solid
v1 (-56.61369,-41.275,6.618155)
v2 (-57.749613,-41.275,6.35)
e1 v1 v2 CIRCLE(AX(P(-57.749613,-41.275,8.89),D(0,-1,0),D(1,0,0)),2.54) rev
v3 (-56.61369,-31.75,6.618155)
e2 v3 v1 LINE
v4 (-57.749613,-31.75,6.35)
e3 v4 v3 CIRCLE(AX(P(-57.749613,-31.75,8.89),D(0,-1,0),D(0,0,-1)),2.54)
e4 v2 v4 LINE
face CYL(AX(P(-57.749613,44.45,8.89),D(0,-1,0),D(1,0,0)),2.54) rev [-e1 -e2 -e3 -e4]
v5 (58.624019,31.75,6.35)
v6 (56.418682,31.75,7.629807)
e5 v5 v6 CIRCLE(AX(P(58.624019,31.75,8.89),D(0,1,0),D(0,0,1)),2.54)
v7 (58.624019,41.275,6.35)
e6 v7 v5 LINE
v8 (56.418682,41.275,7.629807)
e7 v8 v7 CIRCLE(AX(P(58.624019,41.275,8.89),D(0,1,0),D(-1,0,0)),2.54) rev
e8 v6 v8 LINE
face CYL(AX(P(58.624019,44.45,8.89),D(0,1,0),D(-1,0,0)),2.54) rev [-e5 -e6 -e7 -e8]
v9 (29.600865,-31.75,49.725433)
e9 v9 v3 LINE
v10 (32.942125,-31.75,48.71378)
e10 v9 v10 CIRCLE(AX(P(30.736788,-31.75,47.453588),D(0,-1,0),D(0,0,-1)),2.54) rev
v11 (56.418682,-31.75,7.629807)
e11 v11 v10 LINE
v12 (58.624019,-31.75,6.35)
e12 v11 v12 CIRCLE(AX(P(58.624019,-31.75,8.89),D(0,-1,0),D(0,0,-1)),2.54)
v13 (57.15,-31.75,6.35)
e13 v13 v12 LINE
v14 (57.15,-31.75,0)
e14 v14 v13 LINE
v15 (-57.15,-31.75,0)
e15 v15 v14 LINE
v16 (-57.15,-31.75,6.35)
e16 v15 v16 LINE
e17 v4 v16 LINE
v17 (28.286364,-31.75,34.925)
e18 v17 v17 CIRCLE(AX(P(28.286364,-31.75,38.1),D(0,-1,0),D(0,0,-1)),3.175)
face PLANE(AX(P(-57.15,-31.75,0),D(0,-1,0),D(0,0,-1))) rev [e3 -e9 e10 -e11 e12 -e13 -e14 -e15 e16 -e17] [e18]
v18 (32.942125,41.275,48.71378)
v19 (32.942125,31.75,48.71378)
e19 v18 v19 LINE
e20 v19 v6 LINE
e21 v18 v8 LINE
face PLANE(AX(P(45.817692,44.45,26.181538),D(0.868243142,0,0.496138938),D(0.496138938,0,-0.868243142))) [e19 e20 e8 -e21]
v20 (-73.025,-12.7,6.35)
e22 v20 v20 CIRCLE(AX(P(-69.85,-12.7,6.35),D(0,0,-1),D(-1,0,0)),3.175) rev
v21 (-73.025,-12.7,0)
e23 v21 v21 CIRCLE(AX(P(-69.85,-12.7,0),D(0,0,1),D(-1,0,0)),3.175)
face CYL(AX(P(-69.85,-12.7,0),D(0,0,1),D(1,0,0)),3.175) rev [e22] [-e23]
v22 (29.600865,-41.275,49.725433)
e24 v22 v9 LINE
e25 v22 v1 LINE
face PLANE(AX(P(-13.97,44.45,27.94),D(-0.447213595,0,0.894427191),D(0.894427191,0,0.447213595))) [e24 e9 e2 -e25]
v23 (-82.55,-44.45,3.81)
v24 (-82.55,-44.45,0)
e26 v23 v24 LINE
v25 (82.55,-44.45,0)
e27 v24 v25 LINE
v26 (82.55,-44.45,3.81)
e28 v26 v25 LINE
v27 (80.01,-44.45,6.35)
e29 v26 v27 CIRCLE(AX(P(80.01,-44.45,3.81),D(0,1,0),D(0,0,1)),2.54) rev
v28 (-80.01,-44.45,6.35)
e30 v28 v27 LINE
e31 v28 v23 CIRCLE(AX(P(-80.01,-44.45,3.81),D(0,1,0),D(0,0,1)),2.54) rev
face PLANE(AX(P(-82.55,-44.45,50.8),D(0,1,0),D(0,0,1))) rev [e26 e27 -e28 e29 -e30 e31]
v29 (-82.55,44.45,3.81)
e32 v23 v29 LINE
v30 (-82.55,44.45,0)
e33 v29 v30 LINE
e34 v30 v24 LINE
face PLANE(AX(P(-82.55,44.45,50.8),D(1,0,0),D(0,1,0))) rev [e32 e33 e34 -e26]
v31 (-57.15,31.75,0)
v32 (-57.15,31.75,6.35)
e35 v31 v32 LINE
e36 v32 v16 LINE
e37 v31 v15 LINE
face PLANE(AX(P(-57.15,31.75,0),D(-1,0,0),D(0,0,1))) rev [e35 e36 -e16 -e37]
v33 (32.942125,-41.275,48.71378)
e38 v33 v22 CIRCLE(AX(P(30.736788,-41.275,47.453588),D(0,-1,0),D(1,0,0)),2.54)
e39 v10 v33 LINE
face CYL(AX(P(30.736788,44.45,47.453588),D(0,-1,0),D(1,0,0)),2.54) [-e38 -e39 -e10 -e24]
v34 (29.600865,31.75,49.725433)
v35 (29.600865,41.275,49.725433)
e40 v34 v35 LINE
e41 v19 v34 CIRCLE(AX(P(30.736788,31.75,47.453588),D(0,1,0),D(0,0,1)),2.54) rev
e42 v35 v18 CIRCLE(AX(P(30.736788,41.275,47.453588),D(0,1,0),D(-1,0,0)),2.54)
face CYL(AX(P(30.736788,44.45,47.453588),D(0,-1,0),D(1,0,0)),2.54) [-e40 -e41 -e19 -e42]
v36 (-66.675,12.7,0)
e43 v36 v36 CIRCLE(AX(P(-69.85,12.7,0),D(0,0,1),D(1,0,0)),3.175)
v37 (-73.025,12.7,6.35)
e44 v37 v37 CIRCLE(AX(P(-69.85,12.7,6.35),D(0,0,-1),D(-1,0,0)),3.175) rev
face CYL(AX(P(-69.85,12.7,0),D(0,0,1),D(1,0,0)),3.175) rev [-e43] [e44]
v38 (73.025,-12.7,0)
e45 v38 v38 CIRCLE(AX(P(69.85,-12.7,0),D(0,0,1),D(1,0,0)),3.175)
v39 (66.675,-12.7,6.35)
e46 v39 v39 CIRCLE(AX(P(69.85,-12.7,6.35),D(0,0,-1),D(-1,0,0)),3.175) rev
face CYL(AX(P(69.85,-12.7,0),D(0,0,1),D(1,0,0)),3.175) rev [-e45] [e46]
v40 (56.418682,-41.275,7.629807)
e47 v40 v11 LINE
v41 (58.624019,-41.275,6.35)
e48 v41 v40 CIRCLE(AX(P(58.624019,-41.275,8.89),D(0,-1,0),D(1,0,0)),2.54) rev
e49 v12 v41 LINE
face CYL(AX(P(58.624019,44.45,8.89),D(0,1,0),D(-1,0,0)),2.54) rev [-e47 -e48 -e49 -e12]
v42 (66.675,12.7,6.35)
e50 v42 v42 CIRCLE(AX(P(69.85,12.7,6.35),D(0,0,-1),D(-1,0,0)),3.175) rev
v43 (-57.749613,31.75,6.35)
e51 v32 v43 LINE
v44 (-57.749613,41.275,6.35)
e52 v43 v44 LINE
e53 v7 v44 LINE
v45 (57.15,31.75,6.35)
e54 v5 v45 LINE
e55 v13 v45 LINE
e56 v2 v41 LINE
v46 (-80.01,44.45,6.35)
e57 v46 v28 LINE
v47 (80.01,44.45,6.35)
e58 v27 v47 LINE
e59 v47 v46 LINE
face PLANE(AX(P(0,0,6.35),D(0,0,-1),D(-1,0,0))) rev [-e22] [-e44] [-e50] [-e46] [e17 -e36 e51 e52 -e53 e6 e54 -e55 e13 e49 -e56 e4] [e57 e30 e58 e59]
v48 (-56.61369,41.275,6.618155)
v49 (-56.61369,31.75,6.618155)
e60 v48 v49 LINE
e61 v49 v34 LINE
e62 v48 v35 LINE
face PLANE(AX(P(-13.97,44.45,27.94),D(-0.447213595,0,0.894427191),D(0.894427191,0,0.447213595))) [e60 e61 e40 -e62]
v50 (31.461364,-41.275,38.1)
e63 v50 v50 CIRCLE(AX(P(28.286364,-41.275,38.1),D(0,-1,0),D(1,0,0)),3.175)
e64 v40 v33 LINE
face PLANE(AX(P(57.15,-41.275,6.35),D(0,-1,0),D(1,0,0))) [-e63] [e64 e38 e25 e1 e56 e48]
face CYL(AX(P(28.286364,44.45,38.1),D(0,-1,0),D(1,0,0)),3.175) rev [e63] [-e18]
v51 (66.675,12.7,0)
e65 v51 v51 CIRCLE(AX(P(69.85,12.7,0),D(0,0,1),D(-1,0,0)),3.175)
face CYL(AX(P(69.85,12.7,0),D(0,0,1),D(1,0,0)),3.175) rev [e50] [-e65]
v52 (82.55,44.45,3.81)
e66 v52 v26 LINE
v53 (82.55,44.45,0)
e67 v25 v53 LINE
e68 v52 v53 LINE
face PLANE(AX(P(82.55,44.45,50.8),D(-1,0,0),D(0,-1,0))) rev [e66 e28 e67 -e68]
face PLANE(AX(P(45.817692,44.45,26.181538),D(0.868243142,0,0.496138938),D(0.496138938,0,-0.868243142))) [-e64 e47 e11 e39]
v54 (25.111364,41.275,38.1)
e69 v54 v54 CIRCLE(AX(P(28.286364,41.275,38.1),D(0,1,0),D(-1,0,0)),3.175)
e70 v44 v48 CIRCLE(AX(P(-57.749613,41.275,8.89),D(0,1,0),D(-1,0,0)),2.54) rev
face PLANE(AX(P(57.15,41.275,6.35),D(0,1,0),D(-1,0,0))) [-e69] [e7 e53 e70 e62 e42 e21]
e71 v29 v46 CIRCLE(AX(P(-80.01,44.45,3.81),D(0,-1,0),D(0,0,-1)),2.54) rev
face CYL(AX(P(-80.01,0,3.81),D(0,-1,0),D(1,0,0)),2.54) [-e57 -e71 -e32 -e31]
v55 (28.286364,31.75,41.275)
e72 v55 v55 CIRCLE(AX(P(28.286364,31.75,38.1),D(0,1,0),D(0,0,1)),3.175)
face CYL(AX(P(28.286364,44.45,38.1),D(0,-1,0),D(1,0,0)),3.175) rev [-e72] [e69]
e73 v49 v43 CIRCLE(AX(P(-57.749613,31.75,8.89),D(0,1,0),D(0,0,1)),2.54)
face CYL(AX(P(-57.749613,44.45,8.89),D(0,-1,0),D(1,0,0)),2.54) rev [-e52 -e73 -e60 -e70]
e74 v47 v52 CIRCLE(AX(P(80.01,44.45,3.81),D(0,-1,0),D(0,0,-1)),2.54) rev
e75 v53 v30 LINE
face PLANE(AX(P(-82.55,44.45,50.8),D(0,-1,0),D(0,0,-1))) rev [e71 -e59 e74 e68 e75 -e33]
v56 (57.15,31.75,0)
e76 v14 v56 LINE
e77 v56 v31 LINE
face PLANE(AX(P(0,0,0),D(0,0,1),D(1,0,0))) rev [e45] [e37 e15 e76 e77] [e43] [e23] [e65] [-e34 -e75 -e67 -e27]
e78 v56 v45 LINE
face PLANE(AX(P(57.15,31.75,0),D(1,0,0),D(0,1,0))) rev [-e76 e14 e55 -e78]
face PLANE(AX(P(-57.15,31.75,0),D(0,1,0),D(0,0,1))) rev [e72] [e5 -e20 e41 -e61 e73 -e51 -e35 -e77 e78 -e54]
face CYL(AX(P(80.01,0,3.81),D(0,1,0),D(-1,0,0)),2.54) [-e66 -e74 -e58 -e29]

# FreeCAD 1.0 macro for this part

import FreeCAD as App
import Part
import Sketcher
from FreeCAD import Vector
Q = App.Units.Quantity


def edges_at(feature, points):
    """Names of the edges that pass closest to the given points."""
    edges = feature.Shape.Edges
    near = lambda p: min(range(len(edges)), key=lambda i: edges[i].distToShape(Part.Vertex(*p))[0])
    return sorted({f"Edge{near(p) + 1}" for p in points})

doc = App.newDocument("Part")
body = doc.addObject("PartDesign::Body", "Body")

# Sketch on XY plane
sketch1 = doc.addObject("Sketcher::SketchObject", "Sketch")
body.addObject(sketch1)
sketch1.AttachmentSupport = (doc.XY_Plane, [""])
sketch1.MapMode = "FlatFace"
sketch1.addGeometry([
    Part.LineSegment(Vector(-83, 44, 0), Vector(-83, -44, 0)),
    Part.LineSegment(Vector(-83, -44, 0), Vector(83, -44, 0)),
    Part.LineSegment(Vector(83, -44, 0), Vector(83, 44, 0)),
    Part.LineSegment(Vector(83, 44, 0), Vector(-83, 44, 0)),
], False)
sketch1.addConstraint([
    Sketcher.Constraint("Coincident", 0, 2, 1, 1),
    Sketcher.Constraint("Coincident", 1, 2, 2, 1),
    Sketcher.Constraint("Coincident", 2, 2, 3, 1),
    Sketcher.Constraint("Coincident", 3, 2, 0, 1),
    Sketcher.Constraint("Vertical", 0),
    Sketcher.Constraint("Horizontal", 1),
    Sketcher.Constraint("Vertical", 2),
    Sketcher.Constraint("Horizontal", 3),
    Sketcher.Constraint("Symmetric", 0, 2, 2, 2, -1, 1),
    Sketcher.Constraint("DistanceX", 1, 1, 1, 2, Q("6.5 in")),
    Sketcher.Constraint("DistanceY", 0, 2, 0, 1, Q("3.5 in")),
])
pad1 = doc.addObject("PartDesign::Pad", "Pad")
body.addObject(pad1)
pad1.Profile = sketch1
pad1.Length = Q("2 in")

# Sketch on XY plane
sketch2 = doc.addObject("Sketcher::SketchObject", "Sketch001")
body.addObject(sketch2)
sketch2.AttachmentSupport = (doc.XY_Plane, [""])
sketch2.MapMode = "FlatFace"
sketch2.AttachmentOffset = App.Placement(Vector(0, 0, 2 * 25.4), App.Rotation())
sketch2.addGeometry([
    Part.Circle(Vector(-69.8, 12.7, 0), Vector(0, 0, 1), 3.2),  # 0
    Part.Circle(Vector(-69.8, -12.7, 0), Vector(0, 0, 1), 3.2),  # 1
    Part.Circle(Vector(69.8, -12.7, 0), Vector(0, 0, 1), 3.2),  # 2
    Part.Circle(Vector(69.8, 12.7, 0), Vector(0, 0, 1), 3.2),  # 3
    Part.LineSegment(Vector(-57.1, 31.8, 0), Vector(-57.1, -31.8, 0)),  # 4
    Part.LineSegment(Vector(-57.1, -31.8, 0), Vector(57.1, -31.8, 0)),  # 5
    Part.LineSegment(Vector(57.1, -31.8, 0), Vector(57.1, 31.8, 0)),  # 6
    Part.LineSegment(Vector(57.1, 31.8, 0), Vector(-57.1, 31.8, 0)),  # 7
], False)
sketch2.addConstraint([
    Sketcher.Constraint("Coincident", 4, 2, 5, 1),
    Sketcher.Constraint("Coincident", 5, 2, 6, 1),
    Sketcher.Constraint("Coincident", 6, 2, 7, 1),
    Sketcher.Constraint("Coincident", 7, 2, 4, 1),
    Sketcher.Constraint("Vertical", 4),
    Sketcher.Constraint("Horizontal", 5),
    Sketcher.Constraint("Vertical", 6),
    Sketcher.Constraint("Horizontal", 7),
    Sketcher.Constraint("Equal", 0, 1),
    Sketcher.Constraint("Equal", 1, 2),
    Sketcher.Constraint("Equal", 2, 3),
    Sketcher.Constraint("Symmetric", 0, 3, 2, 3, -1, 1),
    Sketcher.Constraint("Symmetric", 1, 3, 3, 3, -1, 1),
    Sketcher.Constraint("Symmetric", 4, 2, 6, 2, -1, 1),
    Sketcher.Constraint("Symmetric", 1, 3, 2, 3, -2),
    Sketcher.Constraint("Diameter", 0, Q("0.25 in")),
    Sketcher.Constraint("DistanceX", 5, 1, 5, 2, Q("4.5 in")),
    Sketcher.Constraint("DistanceY", 4, 2, 4, 1, Q("2.5 in")),
    Sketcher.Constraint("DistanceY", 1, 3, 0, 3, Q("1 in")),
    Sketcher.Constraint("DistanceX", 4, 2, 2, 3, Q("5 in")),
])
pocket1 = doc.addObject("PartDesign::Pocket", "Pocket")
body.addObject(pocket1)
pocket1.Profile = sketch2
pocket1.Type = "ThroughAll"

# Sketch on XY plane
sketch3 = doc.addObject("Sketcher::SketchObject", "Sketch002")
body.addObject(sketch3)
sketch3.AttachmentSupport = (doc.XY_Plane, [""])
sketch3.MapMode = "FlatFace"
sketch3.AttachmentOffset = App.Placement(Vector(0, 0, 2 * 25.4), App.Rotation())
sketch3.addGeometry([
    Part.LineSegment(Vector(-83, 44, 0), Vector(-83, -44, 0)),  # 0
    Part.LineSegment(Vector(-83, -44, 0), Vector(83, -44, 0)),  # 1
    Part.LineSegment(Vector(83, -44, 0), Vector(83, 44, 0)),  # 2
    Part.LineSegment(Vector(83, 44, 0), Vector(-83, 44, 0)),  # 3
    Part.LineSegment(Vector(57, -41, 0), Vector(-57, -41, 0)),  # 4
    Part.LineSegment(Vector(-57, -41, 0), Vector(-57, 41, 0)),  # 5
    Part.LineSegment(Vector(-57, 41, 0), Vector(57, 41, 0)),  # 6
    Part.LineSegment(Vector(57, 41, 0), Vector(57, -41, 0)),  # 7
], False)
sketch3.addConstraint([
    Sketcher.Constraint("Coincident", 0, 2, 1, 1),
    Sketcher.Constraint("Coincident", 1, 2, 2, 1),
    Sketcher.Constraint("Coincident", 2, 2, 3, 1),
    Sketcher.Constraint("Coincident", 3, 2, 0, 1),
    Sketcher.Constraint("Coincident", 4, 2, 5, 1),
    Sketcher.Constraint("Coincident", 5, 2, 6, 1),
    Sketcher.Constraint("Coincident", 6, 2, 7, 1),
    Sketcher.Constraint("Coincident", 7, 2, 4, 1),
    Sketcher.Constraint("Vertical", 0),
    Sketcher.Constraint("Horizontal", 1),
    Sketcher.Constraint("Vertical", 2),
    Sketcher.Constraint("Horizontal", 3),
    Sketcher.Constraint("Horizontal", 4),
    Sketcher.Constraint("Vertical", 5),
    Sketcher.Constraint("Horizontal", 6),
    Sketcher.Constraint("Vertical", 7),
    Sketcher.Constraint("Symmetric", 0, 2, 2, 2, -1, 1),
    Sketcher.Constraint("Symmetric", 4, 2, 6, 2, -1, 1),
    Sketcher.Constraint("DistanceX", 1, 1, 1, 2, Q("6.5 in")),
    Sketcher.Constraint("DistanceX", 4, 2, 4, 1, Q("4.5 in")),
    Sketcher.Constraint("DistanceY", 0, 2, 0, 1, Q("3.5 in")),
    Sketcher.Constraint("DistanceY", 5, 1, 5, 2, Q("3.25 in")),
])
pocket2 = doc.addObject("PartDesign::Pocket", "Pocket001")
body.addObject(pocket2)
pocket2.Profile = sketch3
pocket2.Length = Q("1.75 in")

# Sketch on XZ plane
sketch4 = doc.addObject("Sketcher::SketchObject", "Sketch003")
body.addObject(sketch4)
sketch4.AttachmentSupport = (doc.XZ_Plane, [""])
sketch4.MapMode = "FlatFace"
sketch4.AttachmentOffset = App.Placement(Vector(0, 0, 1.625 * 25.4), App.Rotation())
sketch4.addGeometry([
    Part.LineSegment(Vector(-57.1, 6.3, 0), Vector(31.8, 50.8, 0)),  # 0
    Part.LineSegment(Vector(31.8, 50.8, 0), Vector(-57.1, 50.8, 0)),  # 1
    Part.LineSegment(Vector(-57.1, 50.8, 0), Vector(-57.1, 6.3, 0)),  # 2
    Part.LineSegment(Vector(31.8, 50.8, 0), Vector(57.1, 6.3, 0)),  # 3
    Part.LineSegment(Vector(57.1, 6.3, 0), Vector(57.1, 50.8, 0)),  # 4
    Part.LineSegment(Vector(57.1, 50.8, 0), Vector(31.8, 50.8, 0)),  # 5
    Part.Circle(Vector(28.3, 38.1, 0), Vector(0, 0, 1), 3.2),  # 6
], False)
sketch4.addConstraint([
    Sketcher.Constraint("Coincident", 0, 2, 1, 1),
    Sketcher.Constraint("Coincident", 1, 2, 2, 1),
    Sketcher.Constraint("Coincident", 2, 2, 0, 1),
    Sketcher.Constraint("Coincident", 3, 2, 4, 1),
    Sketcher.Constraint("Coincident", 4, 2, 5, 1),
    Sketcher.Constraint("Coincident", 5, 2, 3, 1),
    Sketcher.Constraint("Horizontal", 1),
    Sketcher.Constraint("Vertical", 2),
    Sketcher.Constraint("Vertical", 4),
    Sketcher.Constraint("Horizontal", 5),
    Sketcher.Constraint("Coincident", 5, 2, 0, 2),
    Sketcher.Constraint("Symmetric", 2, 2, 3, 2, -2),
    Sketcher.Constraint("Diameter", 6, Q("0.25 in")),
    Sketcher.Constraint("DistanceX", 5, 2, 5, 1, Q("1 in")),
    Sketcher.Constraint("DistanceX", 1, 2, 1, 1, Q("3.5 in")),
    Sketcher.Constraint("DistanceY", -1, 1, 0, 2, Q("2 in")),
    Sketcher.Constraint("DistanceY", 2, 2, 2, 1, Q("1.75 in")),
    Sketcher.Constraint("DistanceY", -1, 1, 6, 3, Q("1.5 in")),
    Sketcher.Constraint("DistanceX", -1, 1, 6, 3, Q("28.286364 mm")),
])
pocket3 = doc.addObject("PartDesign::Pocket", "Pocket002")
body.addObject(pocket3)
pocket3.Profile = sketch4
pocket3.Type = "ThroughAll"
doc.recompute()

fillet = doc.addObject("PartDesign::Fillet", "Fillet")
body.addObject(fillet)
fillet.Base = (pocket3, edges_at(pocket3, [
    (-57.15, 36.513, 6.35),
    (-57.15, -36.513, 6.35),
    (57.15, -36.513, 6.35),
    (57.15, 36.513, 6.35),
    (-82.55, 0, 6.35),
    (82.55, 0, 6.35),
    (31.75, -36.513, 50.8),
    (31.75, 36.513, 50.8),
]))
fillet.Radius = Q("0.1 in")

doc.recompute()
